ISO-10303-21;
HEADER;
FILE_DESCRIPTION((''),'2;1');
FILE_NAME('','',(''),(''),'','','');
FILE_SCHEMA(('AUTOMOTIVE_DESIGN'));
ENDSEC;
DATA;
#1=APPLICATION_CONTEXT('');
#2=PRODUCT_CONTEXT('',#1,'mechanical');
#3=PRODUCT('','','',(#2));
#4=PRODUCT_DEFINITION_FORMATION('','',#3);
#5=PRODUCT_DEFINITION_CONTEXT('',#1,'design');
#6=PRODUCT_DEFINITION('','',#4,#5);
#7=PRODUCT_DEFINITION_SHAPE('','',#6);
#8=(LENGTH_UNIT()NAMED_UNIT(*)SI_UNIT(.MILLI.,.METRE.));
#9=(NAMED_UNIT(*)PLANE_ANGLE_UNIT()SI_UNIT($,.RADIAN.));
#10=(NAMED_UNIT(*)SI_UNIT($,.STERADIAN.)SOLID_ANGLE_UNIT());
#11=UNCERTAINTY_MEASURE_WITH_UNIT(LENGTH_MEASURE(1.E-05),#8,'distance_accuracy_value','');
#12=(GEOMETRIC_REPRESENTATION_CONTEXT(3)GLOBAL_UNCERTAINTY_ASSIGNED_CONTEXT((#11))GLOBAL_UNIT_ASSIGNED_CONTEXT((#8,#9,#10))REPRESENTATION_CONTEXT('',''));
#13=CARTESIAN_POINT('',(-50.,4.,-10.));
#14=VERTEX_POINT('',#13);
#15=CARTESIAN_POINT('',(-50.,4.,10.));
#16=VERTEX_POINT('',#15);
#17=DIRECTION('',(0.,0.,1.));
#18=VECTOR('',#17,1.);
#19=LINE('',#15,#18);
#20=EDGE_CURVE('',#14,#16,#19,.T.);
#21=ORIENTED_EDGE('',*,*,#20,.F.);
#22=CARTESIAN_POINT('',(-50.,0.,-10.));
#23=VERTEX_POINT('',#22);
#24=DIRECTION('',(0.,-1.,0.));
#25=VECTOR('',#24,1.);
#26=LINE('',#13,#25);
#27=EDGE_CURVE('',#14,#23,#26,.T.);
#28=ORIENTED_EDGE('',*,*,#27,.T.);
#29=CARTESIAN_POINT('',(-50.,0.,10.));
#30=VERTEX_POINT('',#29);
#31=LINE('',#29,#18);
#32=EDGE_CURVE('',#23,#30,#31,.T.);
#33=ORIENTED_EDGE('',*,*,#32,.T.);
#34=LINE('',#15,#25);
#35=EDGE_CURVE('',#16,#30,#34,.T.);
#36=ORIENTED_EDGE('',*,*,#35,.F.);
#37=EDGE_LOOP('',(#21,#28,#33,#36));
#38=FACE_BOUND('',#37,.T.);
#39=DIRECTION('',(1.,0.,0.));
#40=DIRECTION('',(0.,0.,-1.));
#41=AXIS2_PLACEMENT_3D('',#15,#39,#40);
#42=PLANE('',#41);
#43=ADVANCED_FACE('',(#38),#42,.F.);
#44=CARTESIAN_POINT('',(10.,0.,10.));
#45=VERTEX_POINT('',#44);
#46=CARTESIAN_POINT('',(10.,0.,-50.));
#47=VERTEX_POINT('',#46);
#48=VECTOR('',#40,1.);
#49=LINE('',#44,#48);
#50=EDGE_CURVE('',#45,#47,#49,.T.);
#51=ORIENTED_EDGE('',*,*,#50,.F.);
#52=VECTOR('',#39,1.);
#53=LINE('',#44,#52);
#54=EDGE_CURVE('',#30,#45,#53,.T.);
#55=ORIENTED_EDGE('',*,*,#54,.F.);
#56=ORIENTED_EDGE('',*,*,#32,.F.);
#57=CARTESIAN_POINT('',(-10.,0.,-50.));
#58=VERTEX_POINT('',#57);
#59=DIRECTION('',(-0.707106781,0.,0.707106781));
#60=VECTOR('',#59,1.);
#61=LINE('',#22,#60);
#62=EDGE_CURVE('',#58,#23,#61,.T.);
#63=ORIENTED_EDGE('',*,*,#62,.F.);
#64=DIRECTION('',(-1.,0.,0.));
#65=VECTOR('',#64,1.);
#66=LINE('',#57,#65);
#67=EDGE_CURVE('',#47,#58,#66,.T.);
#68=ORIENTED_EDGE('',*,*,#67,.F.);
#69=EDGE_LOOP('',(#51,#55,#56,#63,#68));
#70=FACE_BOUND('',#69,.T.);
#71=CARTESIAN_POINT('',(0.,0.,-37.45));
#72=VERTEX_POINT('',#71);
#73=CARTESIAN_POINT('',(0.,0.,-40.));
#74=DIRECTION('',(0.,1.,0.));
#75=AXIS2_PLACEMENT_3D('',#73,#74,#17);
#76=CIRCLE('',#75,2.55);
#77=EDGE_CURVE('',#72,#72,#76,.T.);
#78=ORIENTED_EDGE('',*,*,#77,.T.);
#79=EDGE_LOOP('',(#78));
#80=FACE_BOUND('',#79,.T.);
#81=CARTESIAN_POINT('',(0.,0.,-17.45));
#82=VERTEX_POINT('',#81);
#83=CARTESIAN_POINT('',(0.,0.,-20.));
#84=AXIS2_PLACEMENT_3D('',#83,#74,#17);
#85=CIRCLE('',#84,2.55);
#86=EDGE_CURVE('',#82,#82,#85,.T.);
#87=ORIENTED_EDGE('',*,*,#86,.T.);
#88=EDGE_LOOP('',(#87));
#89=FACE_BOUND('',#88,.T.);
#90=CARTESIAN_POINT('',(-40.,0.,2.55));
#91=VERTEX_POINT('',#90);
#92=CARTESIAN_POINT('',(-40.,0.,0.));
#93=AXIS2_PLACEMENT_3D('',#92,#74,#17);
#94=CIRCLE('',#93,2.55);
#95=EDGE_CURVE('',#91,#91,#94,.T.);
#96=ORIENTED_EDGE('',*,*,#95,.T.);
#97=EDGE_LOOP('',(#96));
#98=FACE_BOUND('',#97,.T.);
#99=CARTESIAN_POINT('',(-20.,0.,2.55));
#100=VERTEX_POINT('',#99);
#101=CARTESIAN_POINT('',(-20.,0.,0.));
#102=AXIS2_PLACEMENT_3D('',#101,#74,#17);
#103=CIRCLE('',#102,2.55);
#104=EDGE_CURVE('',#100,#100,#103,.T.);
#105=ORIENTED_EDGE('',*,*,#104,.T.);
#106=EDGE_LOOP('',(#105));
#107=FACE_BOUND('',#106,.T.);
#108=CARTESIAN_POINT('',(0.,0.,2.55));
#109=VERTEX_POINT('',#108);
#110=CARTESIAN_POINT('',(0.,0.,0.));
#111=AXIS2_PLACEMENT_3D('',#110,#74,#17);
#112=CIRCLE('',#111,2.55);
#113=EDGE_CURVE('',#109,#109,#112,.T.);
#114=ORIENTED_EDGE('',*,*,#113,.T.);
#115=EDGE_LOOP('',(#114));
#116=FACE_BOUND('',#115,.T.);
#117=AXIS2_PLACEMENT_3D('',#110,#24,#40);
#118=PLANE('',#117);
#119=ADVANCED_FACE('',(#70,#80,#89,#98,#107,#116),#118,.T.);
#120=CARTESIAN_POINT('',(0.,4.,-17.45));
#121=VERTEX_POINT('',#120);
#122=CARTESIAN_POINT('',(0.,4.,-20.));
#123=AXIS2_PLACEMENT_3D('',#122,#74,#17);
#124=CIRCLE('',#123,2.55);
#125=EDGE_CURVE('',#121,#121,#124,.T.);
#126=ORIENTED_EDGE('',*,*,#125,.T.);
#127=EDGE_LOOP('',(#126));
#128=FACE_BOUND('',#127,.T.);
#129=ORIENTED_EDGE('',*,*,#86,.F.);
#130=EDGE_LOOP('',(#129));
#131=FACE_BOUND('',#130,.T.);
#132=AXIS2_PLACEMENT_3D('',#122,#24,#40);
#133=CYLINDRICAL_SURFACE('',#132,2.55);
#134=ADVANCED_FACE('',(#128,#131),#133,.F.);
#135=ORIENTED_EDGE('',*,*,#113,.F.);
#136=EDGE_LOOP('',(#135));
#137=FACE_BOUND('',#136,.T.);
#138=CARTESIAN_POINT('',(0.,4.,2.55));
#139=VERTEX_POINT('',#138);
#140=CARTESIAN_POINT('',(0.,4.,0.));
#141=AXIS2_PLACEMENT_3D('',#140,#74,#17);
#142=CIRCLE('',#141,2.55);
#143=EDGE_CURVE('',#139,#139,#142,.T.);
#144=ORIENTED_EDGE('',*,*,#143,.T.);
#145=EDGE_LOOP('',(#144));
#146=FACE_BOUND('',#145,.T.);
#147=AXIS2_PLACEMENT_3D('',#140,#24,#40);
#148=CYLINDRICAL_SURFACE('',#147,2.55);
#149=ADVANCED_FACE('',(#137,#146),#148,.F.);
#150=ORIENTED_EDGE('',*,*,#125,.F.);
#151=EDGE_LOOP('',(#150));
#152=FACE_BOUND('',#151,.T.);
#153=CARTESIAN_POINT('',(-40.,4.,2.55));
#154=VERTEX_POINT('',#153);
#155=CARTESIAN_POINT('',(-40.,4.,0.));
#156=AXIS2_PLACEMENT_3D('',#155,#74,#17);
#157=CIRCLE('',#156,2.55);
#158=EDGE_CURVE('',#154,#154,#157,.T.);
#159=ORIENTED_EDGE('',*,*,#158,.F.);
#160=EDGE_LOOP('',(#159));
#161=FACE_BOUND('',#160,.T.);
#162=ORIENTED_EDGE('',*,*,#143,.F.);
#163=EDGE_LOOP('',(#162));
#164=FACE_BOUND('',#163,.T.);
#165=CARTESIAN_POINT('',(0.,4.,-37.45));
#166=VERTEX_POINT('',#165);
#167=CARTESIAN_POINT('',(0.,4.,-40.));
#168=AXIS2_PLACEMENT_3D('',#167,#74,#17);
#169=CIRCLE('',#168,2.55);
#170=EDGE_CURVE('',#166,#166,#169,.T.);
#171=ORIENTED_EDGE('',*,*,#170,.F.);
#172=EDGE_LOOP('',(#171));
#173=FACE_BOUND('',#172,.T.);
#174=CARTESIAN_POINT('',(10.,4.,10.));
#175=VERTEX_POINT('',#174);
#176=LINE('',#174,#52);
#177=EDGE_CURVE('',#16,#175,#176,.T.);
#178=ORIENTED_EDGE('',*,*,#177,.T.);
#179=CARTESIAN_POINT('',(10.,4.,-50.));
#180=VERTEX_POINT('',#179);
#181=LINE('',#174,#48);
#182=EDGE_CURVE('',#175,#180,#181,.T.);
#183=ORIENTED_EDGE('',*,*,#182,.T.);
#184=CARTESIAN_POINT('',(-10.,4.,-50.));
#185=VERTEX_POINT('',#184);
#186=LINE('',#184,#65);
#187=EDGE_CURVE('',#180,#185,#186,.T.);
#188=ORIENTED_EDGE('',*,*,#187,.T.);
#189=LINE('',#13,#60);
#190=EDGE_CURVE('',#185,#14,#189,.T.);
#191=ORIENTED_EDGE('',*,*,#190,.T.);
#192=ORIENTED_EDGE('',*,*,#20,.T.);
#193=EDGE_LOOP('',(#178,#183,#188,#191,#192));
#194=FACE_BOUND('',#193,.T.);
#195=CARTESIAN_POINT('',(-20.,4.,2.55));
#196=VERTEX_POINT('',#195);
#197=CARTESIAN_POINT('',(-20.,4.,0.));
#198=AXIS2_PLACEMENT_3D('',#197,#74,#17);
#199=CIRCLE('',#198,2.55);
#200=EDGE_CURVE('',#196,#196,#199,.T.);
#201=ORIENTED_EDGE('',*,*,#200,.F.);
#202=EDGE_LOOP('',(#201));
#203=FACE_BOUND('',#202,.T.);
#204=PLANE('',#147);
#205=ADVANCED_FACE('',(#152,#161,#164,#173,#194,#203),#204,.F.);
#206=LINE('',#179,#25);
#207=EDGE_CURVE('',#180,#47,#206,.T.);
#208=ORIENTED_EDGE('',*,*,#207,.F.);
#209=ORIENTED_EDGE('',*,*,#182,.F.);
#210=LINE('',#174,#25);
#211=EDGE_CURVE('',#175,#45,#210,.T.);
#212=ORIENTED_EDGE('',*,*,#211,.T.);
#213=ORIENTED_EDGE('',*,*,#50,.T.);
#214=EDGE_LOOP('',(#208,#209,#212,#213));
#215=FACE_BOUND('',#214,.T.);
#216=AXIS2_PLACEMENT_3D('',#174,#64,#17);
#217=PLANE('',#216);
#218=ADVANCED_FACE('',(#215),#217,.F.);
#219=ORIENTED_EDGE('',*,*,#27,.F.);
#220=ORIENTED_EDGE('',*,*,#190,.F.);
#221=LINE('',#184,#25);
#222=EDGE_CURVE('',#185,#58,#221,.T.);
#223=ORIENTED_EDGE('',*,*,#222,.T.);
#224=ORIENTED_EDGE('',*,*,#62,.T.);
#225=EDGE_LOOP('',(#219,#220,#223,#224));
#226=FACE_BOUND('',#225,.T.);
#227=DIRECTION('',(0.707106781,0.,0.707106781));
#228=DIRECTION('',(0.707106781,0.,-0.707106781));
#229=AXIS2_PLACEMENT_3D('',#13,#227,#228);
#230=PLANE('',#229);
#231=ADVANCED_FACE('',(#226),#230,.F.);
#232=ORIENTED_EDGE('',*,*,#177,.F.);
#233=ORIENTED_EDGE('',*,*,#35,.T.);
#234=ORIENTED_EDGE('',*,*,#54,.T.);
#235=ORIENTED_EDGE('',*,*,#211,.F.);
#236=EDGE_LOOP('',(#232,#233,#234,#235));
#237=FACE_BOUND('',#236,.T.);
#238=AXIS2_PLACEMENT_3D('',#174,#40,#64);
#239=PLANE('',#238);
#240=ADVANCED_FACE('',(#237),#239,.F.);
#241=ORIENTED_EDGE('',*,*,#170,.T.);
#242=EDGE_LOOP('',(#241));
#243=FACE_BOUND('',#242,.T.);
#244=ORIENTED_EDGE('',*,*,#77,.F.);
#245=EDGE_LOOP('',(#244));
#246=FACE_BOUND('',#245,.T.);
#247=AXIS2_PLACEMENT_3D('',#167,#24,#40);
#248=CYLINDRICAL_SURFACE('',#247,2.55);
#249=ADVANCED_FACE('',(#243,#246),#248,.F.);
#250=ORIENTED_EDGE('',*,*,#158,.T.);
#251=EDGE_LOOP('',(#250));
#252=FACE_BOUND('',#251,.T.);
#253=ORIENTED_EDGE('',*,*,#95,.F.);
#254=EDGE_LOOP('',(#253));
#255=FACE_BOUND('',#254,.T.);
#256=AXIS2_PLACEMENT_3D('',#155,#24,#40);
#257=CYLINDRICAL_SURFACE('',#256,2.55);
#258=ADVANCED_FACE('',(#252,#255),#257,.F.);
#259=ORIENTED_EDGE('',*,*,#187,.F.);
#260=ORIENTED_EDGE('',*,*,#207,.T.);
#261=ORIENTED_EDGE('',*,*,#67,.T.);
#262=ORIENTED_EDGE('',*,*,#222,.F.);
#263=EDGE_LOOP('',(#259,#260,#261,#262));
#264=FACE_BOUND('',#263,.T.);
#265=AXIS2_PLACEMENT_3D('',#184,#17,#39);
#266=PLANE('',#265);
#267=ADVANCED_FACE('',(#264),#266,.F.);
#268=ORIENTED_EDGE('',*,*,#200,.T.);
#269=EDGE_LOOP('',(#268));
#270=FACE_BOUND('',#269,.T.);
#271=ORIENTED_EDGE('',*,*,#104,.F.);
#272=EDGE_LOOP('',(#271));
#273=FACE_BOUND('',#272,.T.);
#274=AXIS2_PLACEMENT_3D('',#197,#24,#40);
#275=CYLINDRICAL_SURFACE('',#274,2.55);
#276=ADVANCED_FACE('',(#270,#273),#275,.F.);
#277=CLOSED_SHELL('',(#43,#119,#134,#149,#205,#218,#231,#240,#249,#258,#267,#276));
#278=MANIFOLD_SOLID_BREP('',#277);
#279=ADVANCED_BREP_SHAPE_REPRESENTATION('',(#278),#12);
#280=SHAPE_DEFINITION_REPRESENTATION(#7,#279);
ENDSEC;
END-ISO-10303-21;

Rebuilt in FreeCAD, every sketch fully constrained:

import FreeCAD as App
import Part
import Sketcher
from FreeCAD import Vector

doc = App.newDocument("Part")
body = doc.addObject("PartDesign::Body", "Body")

sketch1 = body.newObject("Sketcher::SketchObject", "Sketch")
sketch1.AttachmentSupport = (doc.getObject("XZ_Plane"), [""])
sketch1.MapMode = "FlatFace"
sketch1.addGeometry(Part.LineSegment(Vector(-50, 10, 0), Vector(10, 10, 0)), False)
sketch1.addGeometry(Part.LineSegment(Vector(10, 10, 0), Vector(10, -50, 0)), False)
sketch1.addGeometry(Part.LineSegment(Vector(10, -50, 0), Vector(-10, -50, 0)), False)
sketch1.addGeometry(Part.LineSegment(Vector(-10, -50, 0), Vector(-50, -10, 0)), False)
sketch1.addGeometry(Part.LineSegment(Vector(-50, -10, 0), Vector(-50, 10, 0)), False)
sketch1.addGeometry(Part.Circle(Vector(0, 0, 0), Vector(0, 0, 1), 2.5), False)
sketch1.addGeometry(Part.Circle(Vector(-20, 0, 0), Vector(0, 0, 1), 2.5), False)
sketch1.addGeometry(Part.Circle(Vector(-40, 0, 0), Vector(0, 0, 1), 2.5), False)
sketch1.addGeometry(Part.Circle(Vector(0, -20, 0), Vector(0, 0, 1), 2.5), False)
sketch1.addGeometry(Part.Circle(Vector(0, -40, 0), Vector(0, 0, 1), 2.5), False)
sketch1.addConstraint(Sketcher.Constraint("Coincident", 0, 2, 1, 1))
sketch1.addConstraint(Sketcher.Constraint("Coincident", 1, 2, 2, 1))
sketch1.addConstraint(Sketcher.Constraint("Coincident", 2, 2, 3, 1))
sketch1.addConstraint(Sketcher.Constraint("Coincident", 3, 2, 4, 1))
sketch1.addConstraint(Sketcher.Constraint("Coincident", 4, 2, 0, 1))
sketch1.addConstraint(Sketcher.Constraint("Horizontal", 0))
sketch1.addConstraint(Sketcher.Constraint("Vertical", 1))
sketch1.addConstraint(Sketcher.Constraint("Horizontal", 2))
sketch1.addConstraint(Sketcher.Constraint("Vertical", 4))
sketch1.addConstraint(Sketcher.Constraint("Coincident", 5, 3, -1, 1))
sketch1.addConstraint(Sketcher.Constraint("Equal", 5, 6))
sketch1.addConstraint(Sketcher.Constraint("Equal", 6, 7))
sketch1.addConstraint(Sketcher.Constraint("Equal", 7, 8))
sketch1.addConstraint(Sketcher.Constraint("Equal", 8, 9))
sketch1.addConstraint(Sketcher.Constraint("PointOnObject", 6, 3, -1))
sketch1.addConstraint(Sketcher.Constraint("PointOnObject", 7, 3, -1))
sketch1.addConstraint(Sketcher.Constraint("PointOnObject", 8, 3, -2))
sketch1.addConstraint(Sketcher.Constraint("PointOnObject", 9, 3, -2))
sketch1.addConstraint(Sketcher.Constraint("Equal", 0, 1))
sketch1.addConstraint(Sketcher.Constraint("Equal", 2, 4))
sketch1.addConstraint(Sketcher.Constraint("Diameter", 5, 5.1))
sketch1.addConstraint(Sketcher.Constraint("DistanceX", 0, 1, 0, 2, 60.0))
sketch1.addConstraint(Sketcher.Constraint("DistanceX", 2, 2, 2, 1, 20.0))
sketch1.addConstraint(Sketcher.Constraint("DistanceX", 6, 3, -1, 1, 20.0))
sketch1.addConstraint(Sketcher.Constraint("DistanceX", 7, 3, -1, 1, 40.0))
sketch1.addConstraint(Sketcher.Constraint("DistanceY", 8, 3, -1, 1, 20.0))
sketch1.addConstraint(Sketcher.Constraint("DistanceY", 9, 3, -1, 1, 40.0))
sketch1.addConstraint(Sketcher.Constraint("DistanceX", -1, 1, 0, 2, 10.0))
sketch1.addConstraint(Sketcher.Constraint("DistanceY", -1, 1, 0, 2, 10.0))
pad1 = body.newObject("PartDesign::Pad", "Pad")
pad1.Profile = sketch1
pad1.Length = 4
pad1.Reversed = True

doc.recompute()
